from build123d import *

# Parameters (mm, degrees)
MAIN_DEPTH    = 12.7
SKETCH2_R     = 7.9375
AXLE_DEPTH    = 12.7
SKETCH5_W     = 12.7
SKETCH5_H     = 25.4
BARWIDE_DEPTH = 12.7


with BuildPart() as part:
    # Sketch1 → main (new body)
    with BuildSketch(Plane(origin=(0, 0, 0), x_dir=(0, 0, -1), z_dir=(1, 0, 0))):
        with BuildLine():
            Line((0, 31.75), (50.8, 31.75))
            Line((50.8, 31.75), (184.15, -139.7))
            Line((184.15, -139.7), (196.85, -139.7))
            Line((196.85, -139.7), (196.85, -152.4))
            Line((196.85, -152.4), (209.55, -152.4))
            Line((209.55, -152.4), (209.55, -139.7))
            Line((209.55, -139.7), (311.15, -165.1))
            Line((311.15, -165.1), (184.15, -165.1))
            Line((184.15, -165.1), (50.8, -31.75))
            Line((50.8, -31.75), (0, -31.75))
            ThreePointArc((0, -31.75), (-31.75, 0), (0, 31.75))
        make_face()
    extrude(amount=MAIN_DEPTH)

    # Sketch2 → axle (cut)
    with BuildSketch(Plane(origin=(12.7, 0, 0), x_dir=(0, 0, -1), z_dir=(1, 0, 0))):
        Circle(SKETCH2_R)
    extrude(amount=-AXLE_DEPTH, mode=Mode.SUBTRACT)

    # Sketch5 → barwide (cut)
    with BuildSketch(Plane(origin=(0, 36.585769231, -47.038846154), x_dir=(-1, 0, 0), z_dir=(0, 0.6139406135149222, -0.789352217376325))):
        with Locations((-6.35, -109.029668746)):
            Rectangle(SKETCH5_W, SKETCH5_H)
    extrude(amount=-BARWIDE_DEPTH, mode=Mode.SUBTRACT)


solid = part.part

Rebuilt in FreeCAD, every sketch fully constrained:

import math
import FreeCAD as App
import Part
import Sketcher

V = App.Vector
Q = App.Units.Quantity

doc = App.newDocument("Part")
params = doc.addObject("Spreadsheet::Sheet", "Params")
for row, (alias, value) in enumerate([
    ("sketch1_height", "2 in"),
    ("sketch1_height2", "5 in"),
    ("sketch1_radius", "1.25 in"),
    ("sketch1_width", "0.5 in"),
    ("pad1_length", "0.5 in"),
    ("sketch2_diameter", "0.625 in"),
    ("pocket1_length", "0.5 in"),
    ("sketch3_height", "1 in"),
    ("sketch3_width", "0.5 in"),
    ("pocket2_length", "0.5 in"),
], start=1):
    params.set(f"A{row}", alias)
    params.set(f"B{row}", "=" + value)
    params.setAlias(f"B{row}", alias)

body = doc.addObject("PartDesign::Body", "Body")

# Sketch on YZ plane
sketch1 = body.newObject("Sketcher::SketchObject", "Sketch")
sketch1.AttachmentSupport = (doc.getObject("YZ_Plane"), [""])
sketch1.MapMode = "FlatFace"
sketch1.addGeometry([
    Part.LineSegment(V(31.75, -50.8, 0), V(31.75, 0, 0)),  # 0
    Part.ArcOfCircle(Part.Circle(V(0, 0, 0), V(0, 0, 1), 31.75), math.radians(0), math.radians(180)),  # 1
    Part.LineSegment(V(-31.75, 0, 0), V(-31.75, -50.8, 0)),  # 2
    Part.LineSegment(V(-31.75, -50.8, 0), V(-165.1, -184.15, 0)),  # 3
    Part.LineSegment(V(-165.1, -184.15, 0), V(-165.1, -311.15, 0)),  # 4
    Part.LineSegment(V(-165.1, -311.15, 0), V(-139.7, -209.55, 0)),  # 5
    Part.LineSegment(V(-139.7, -209.55, 0), V(-152.4, -209.55, 0)),  # 6
    Part.LineSegment(V(-152.4, -209.55, 0), V(-152.4, -196.85, 0)),  # 7
    Part.LineSegment(V(-152.4, -196.85, 0), V(-139.7, -196.85, 0)),  # 8
    Part.LineSegment(V(-139.7, -196.85, 0), V(-139.7, -184.15, 0)),  # 9
    Part.LineSegment(V(-139.7, -184.15, 0), V(31.75, -50.8, 0)),  # 10
], False)
sketch1.addConstraint([
    Sketcher.Constraint("Tangent", 0, 2, 1, 1),
    Sketcher.Constraint("Tangent", 1, 2, 2, 1),
    Sketcher.Constraint("Coincident", 2, 2, 3, 1),
    Sketcher.Constraint("Coincident", 3, 2, 4, 1),
    Sketcher.Constraint("Coincident", 4, 2, 5, 1),
    Sketcher.Constraint("Coincident", 5, 2, 6, 1),
    Sketcher.Constraint("Coincident", 6, 2, 7, 1),
    Sketcher.Constraint("Coincident", 7, 2, 8, 1),
    Sketcher.Constraint("Coincident", 8, 2, 9, 1),
    Sketcher.Constraint("Coincident", 9, 2, 10, 1),
    Sketcher.Constraint("Coincident", 10, 2, 0, 1),
    Sketcher.Constraint("Vertical", 0),
    Sketcher.Constraint("Vertical", 2),
    Sketcher.Constraint("Vertical", 4),
    Sketcher.Constraint("Horizontal", 6),
    Sketcher.Constraint("Vertical", 7),
    Sketcher.Constraint("Horizontal", 8),
    Sketcher.Constraint("Vertical", 9),
    Sketcher.Constraint("Coincident", 1, 3, -1, 1),
    Sketcher.Constraint("Horizontal", 3, 2, 9, 2),
    Sketcher.Constraint("Horizontal", 2, 2, 10, 2),
    Sketcher.Constraint("Vertical", 5, 2, 8, 2),
    Sketcher.Constraint("Equal", 8, 7),
    Sketcher.Constraint("Equal", 7, 9),
    Sketcher.Constraint("DistanceY", 0, 1, 0, 2, Q("2 in")),
    Sketcher.Constraint("DistanceY", 4, 2, 4, 1, Q("5 in")),
    Sketcher.Constraint("Radius", 1, Q("1.25 in")),
    Sketcher.Constraint("DistanceX", 6, 2, 6, 1, Q("0.5 in")),
    Sketcher.Constraint("DistanceX", 6, 2, -1, 1, Q("6 in")),
    Sketcher.Constraint("Angle", 3, Q("-135 deg")),
    Sketcher.Constraint("DistanceX", 3, 2, 5, 2, Q("1 in")),
])
sketch1.setExpression("Constraints[24]", "Params.sketch1_height")
sketch1.setExpression("Constraints[25]", "Params.sketch1_height2")
sketch1.setExpression("Constraints[26]", "Params.sketch1_radius")
sketch1.setExpression("Constraints[27]", "Params.sketch1_width")
pad1 = body.newObject("PartDesign::Pad", "Pad")
pad1.Profile = sketch1
pad1.setExpression("Length", "Params.pad1_length")

# Sketch on YZ plane
sketch2 = body.newObject("Sketcher::SketchObject", "Sketch001")
sketch2.AttachmentSupport = (doc.getObject("YZ_Plane"), [""])
sketch2.MapMode = "FlatFace"
sketch2.AttachmentOffset = App.Placement(V(0, 0, 0.5 * 25.4), App.Rotation())
sketch2.addGeometry(Part.Circle(V(0, 0, 0), V(0, 0, 1), 7.9375), False)
sketch2.addConstraint([
    Sketcher.Constraint("Coincident", 0, 3, -1, 1),
    Sketcher.Constraint("Diameter", 0, Q("0.625 in")),
])
sketch2.setExpression("Constraints[1]", "Params.sketch2_diameter")
pocket1 = body.newObject("PartDesign::Pocket", "Pocket")
pocket1.Profile = sketch2
pocket1.setExpression("Length", "Params.pocket1_length")

# Sketch on an angled plane
sketch3 = body.newObject("Sketcher::SketchObject", "Sketch002")
sketch3.Placement = App.Placement(V(0, 36.585769, -47.038846), App.Rotation(V(-1, 0, 0), V(0, 0.789352217, 0.613940614), V(0, 0.613940614, -0.789352217), "ZXY"))
sketch3.addGeometry([
    Part.LineSegment(V(-12.7, -96.329669, 0), V(-12.7, -121.729669, 0)),
    Part.LineSegment(V(-12.7, -121.729669, 0), V(0, -121.729669, 0)),
    Part.LineSegment(V(0, -121.729669, 0), V(0, -96.329669, 0)),
    Part.LineSegment(V(0, -96.329669, 0), V(-12.7, -96.329669, 0)),
], False)
sketch3.addConstraint([
    Sketcher.Constraint("Coincident", 0, 2, 1, 1),
    Sketcher.Constraint("Coincident", 1, 2, 2, 1),
    Sketcher.Constraint("Coincident", 2, 2, 3, 1),
    Sketcher.Constraint("Coincident", 3, 2, 0, 1),
    Sketcher.Constraint("Vertical", 0),
    Sketcher.Constraint("Horizontal", 1),
    Sketcher.Constraint("Vertical", 2),
    Sketcher.Constraint("Horizontal", 3),
    Sketcher.Constraint("PointOnObject", 1, 2, -2),
    Sketcher.Constraint("DistanceY", 0, 2, 0, 1, Q("1 in")),
    Sketcher.Constraint("DistanceX", 1, 1, 1, 2, Q("0.5 in")),
    Sketcher.Constraint("DistanceY", 0, 2, -1, 1, Q("121.729669 mm")),
])
sketch3.setExpression("Constraints[9]", "Params.sketch3_height")
sketch3.setExpression("Constraints[10]", "Params.sketch3_width")
pocket2 = body.newObject("PartDesign::Pocket", "Pocket001")
pocket2.Profile = sketch3
pocket2.setExpression("Length", "Params.pocket2_length")

doc.recompute()
